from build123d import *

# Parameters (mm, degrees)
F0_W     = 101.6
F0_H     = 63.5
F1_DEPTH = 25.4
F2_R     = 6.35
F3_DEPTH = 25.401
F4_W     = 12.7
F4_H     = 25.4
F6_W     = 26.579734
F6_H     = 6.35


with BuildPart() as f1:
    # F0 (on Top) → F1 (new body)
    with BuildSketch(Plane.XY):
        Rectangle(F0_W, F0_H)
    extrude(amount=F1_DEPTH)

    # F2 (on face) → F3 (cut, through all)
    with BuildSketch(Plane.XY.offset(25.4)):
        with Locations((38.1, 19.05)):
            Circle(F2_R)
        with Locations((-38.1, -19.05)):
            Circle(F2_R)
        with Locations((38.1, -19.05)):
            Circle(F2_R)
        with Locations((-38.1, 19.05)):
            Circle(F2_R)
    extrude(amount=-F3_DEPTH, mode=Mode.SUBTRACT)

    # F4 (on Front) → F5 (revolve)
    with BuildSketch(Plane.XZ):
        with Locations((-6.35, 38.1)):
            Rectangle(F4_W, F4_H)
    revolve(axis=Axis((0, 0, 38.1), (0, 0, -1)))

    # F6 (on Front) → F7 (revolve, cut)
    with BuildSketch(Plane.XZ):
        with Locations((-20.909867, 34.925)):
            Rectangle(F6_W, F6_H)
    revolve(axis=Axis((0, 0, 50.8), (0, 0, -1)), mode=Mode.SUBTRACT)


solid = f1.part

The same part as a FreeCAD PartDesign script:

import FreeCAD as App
import Part
import Sketcher
from FreeCAD import Vector
Q = App.Units.Quantity

doc = App.newDocument("Part")
params = doc.addObject("Spreadsheet::Sheet", "Params")
for row, (alias, value) in enumerate([
    ("sketch1_width", "4 in"),
    ("sketch1_height", "2.5 in"),
    ("pad1_length", "1 in"),
    ("sketch2_diameter", "0.5 in"),
    ("sketch3_height", "1 in"),
    ("sketch3_width", "0.5 in"),
    ("revolution_angle", "360 deg"),
    ("sketch4_height", "0.25 in"),
    ("groove_angle", "360 deg"),
], start=1):
    params.set(f"A{row}", alias)
    params.set(f"B{row}", "=" + value)
    params.setAlias(f"B{row}", alias)

body = doc.addObject("PartDesign::Body", "Body")

# Sketch on XY plane
sketch1 = doc.addObject("Sketcher::SketchObject", "Sketch")
body.addObject(sketch1)
sketch1.AttachmentSupport = (doc.XY_Plane, [""])
sketch1.MapMode = "FlatFace"
sketch1.addGeometry([
    Part.LineSegment(Vector(-50.8, 31.75, 0), Vector(-50.8, -31.75, 0)),
    Part.LineSegment(Vector(-50.8, -31.75, 0), Vector(50.8, -31.75, 0)),
    Part.LineSegment(Vector(50.8, -31.75, 0), Vector(50.8, 31.75, 0)),
    Part.LineSegment(Vector(50.8, 31.75, 0), Vector(-50.8, 31.75, 0)),
], False)
sketch1.addConstraint([
    Sketcher.Constraint("Coincident", 0, 2, 1, 1),
    Sketcher.Constraint("Coincident", 1, 2, 2, 1),
    Sketcher.Constraint("Coincident", 2, 2, 3, 1),
    Sketcher.Constraint("Coincident", 3, 2, 0, 1),
    Sketcher.Constraint("Vertical", 0),
    Sketcher.Constraint("Horizontal", 1),
    Sketcher.Constraint("Vertical", 2),
    Sketcher.Constraint("Horizontal", 3),
    Sketcher.Constraint("Symmetric", 0, 2, 2, 2, -1, 1),
    Sketcher.Constraint("DistanceX", 1, 1, 1, 2, Q("4 in")),
    Sketcher.Constraint("DistanceY", 0, 2, 0, 1, Q("2.5 in")),
])
sketch1.setExpression("Constraints[9]", "Params.sketch1_width")
sketch1.setExpression("Constraints[10]", "Params.sketch1_height")
pad1 = doc.addObject("PartDesign::Pad", "Pad")
body.addObject(pad1)
pad1.Profile = sketch1
pad1.setExpression("Length", "Params.pad1_length")

# Sketch on XY plane
sketch2 = doc.addObject("Sketcher::SketchObject", "Sketch001")
body.addObject(sketch2)
sketch2.AttachmentSupport = (doc.XY_Plane, [""])
sketch2.MapMode = "FlatFace"
sketch2.AttachmentOffset = App.Placement(Vector(0, 0, 1 * 25.4), App.Rotation())
sketch2.addGeometry([
    Part.Circle(Vector(38.1, 19.05, 0), Vector(0, 0, 1), 6.35),
    Part.Circle(Vector(-38.1, -19.05, 0), Vector(0, 0, 1), 6.35),
    Part.Circle(Vector(38.1, -19.05, 0), Vector(0, 0, 1), 6.35),
    Part.Circle(Vector(-38.1, 19.05, 0), Vector(0, 0, 1), 6.35),
], False)
sketch2.addConstraint([
    Sketcher.Constraint("Equal", 0, 1),
    Sketcher.Constraint("Equal", 1, 2),
    Sketcher.Constraint("Equal", 2, 3),
    Sketcher.Constraint("Symmetric", 0, 3, 1, 3, -1, 1),
    Sketcher.Constraint("Symmetric", 2, 3, 3, 3, -1, 1),
    Sketcher.Constraint("Symmetric", 1, 3, 2, 3, -2),
    Sketcher.Constraint("Diameter", 0, Q("0.5 in")),
    Sketcher.Constraint("DistanceX", 1, 3, 0, 3, Q("3 in")),
    Sketcher.Constraint("DistanceY", 1, 3, 0, 3, Q("1.5 in")),
])
sketch2.setExpression("Constraints[6]", "Params.sketch2_diameter")
pocket1 = doc.addObject("PartDesign::Pocket", "Pocket")
body.addObject(pocket1)
pocket1.Profile = sketch2
pocket1.Type = "ThroughAll"

# Sketch on XZ plane
sketch3 = doc.addObject("Sketcher::SketchObject", "Sketch002")
body.addObject(sketch3)
sketch3.AttachmentSupport = (doc.XZ_Plane, [""])
sketch3.MapMode = "FlatFace"
sketch3.addGeometry([
    Part.LineSegment(Vector(-12.7, 50.8, 0), Vector(-12.7, 25.4, 0)),
    Part.LineSegment(Vector(-12.7, 25.4, 0), Vector(0, 25.4, 0)),
    Part.LineSegment(Vector(0, 25.4, 0), Vector(0, 50.8, 0)),
    Part.LineSegment(Vector(0, 50.8, 0), Vector(-12.7, 50.8, 0)),
], False)
sketch3.addConstraint([
    Sketcher.Constraint("Coincident", 0, 2, 1, 1),
    Sketcher.Constraint("Coincident", 1, 2, 2, 1),
    Sketcher.Constraint("Coincident", 2, 2, 3, 1),
    Sketcher.Constraint("Coincident", 3, 2, 0, 1),
    Sketcher.Constraint("Vertical", 0),
    Sketcher.Constraint("Horizontal", 1),
    Sketcher.Constraint("Vertical", 2),
    Sketcher.Constraint("Horizontal", 3),
    Sketcher.Constraint("PointOnObject", 1, 2, -2),
    Sketcher.Constraint("DistanceY", 0, 2, 0, 1, Q("1 in")),
    Sketcher.Constraint("DistanceX", 1, 1, 1, 2, Q("0.5 in")),
    Sketcher.Constraint("DistanceY", -1, 1, 0, 2, Q("1 in")),
])
sketch3.setExpression("Constraints[9]", "Params.sketch3_height")
sketch3.setExpression("Constraints[10]", "Params.sketch3_width")
revolution = doc.addObject("PartDesign::Revolution", "Revolution")
body.addObject(revolution)
revolution.Profile = sketch3
revolution.ReferenceAxis = (sketch3, ["V_Axis"])
revolution.setExpression("Angle", "Params.revolution_angle")

# Sketch on XZ plane
sketch4 = doc.addObject("Sketcher::SketchObject", "Sketch003")
body.addObject(sketch4)
sketch4.AttachmentSupport = (doc.XZ_Plane, [""])
sketch4.MapMode = "FlatFace"
sketch4.addGeometry([
    Part.LineSegment(Vector(-34.199734, 38.1, 0), Vector(-34.199734, 31.75, 0)),
    Part.LineSegment(Vector(-34.199734, 31.75, 0), Vector(-7.62, 31.75, 0)),
    Part.LineSegment(Vector(-7.62, 31.75, 0), Vector(-7.62, 38.1, 0)),
    Part.LineSegment(Vector(-7.62, 38.1, 0), Vector(-34.199734, 38.1, 0)),
], False)
sketch4.addConstraint([
    Sketcher.Constraint("Coincident", 0, 2, 1, 1),
    Sketcher.Constraint("Coincident", 1, 2, 2, 1),
    Sketcher.Constraint("Coincident", 2, 2, 3, 1),
    Sketcher.Constraint("Coincident", 3, 2, 0, 1),
    Sketcher.Constraint("Vertical", 0),
    Sketcher.Constraint("Horizontal", 1),
    Sketcher.Constraint("Vertical", 2),
    Sketcher.Constraint("Horizontal", 3),
    Sketcher.Constraint("DistanceY", 0, 2, 0, 1, Q("0.25 in")),
    Sketcher.Constraint("DistanceX", 1, 2, -1, 1, Q("0.3 in")),
    Sketcher.Constraint("DistanceY", -1, 1, 2, 2, Q("1.5 in")),
    Sketcher.Constraint("DistanceX", 1, 1, 1, 2, Q("26.579734 mm")),
])
sketch4.setExpression("Constraints[8]", "Params.sketch4_height")
groove = doc.addObject("PartDesign::Groove", "Groove")
body.addObject(groove)
groove.Profile = sketch4
groove.ReferenceAxis = (sketch4, ["V_Axis"])
groove.setExpression("Angle", "Params.groove_angle")

doc.recompute()
